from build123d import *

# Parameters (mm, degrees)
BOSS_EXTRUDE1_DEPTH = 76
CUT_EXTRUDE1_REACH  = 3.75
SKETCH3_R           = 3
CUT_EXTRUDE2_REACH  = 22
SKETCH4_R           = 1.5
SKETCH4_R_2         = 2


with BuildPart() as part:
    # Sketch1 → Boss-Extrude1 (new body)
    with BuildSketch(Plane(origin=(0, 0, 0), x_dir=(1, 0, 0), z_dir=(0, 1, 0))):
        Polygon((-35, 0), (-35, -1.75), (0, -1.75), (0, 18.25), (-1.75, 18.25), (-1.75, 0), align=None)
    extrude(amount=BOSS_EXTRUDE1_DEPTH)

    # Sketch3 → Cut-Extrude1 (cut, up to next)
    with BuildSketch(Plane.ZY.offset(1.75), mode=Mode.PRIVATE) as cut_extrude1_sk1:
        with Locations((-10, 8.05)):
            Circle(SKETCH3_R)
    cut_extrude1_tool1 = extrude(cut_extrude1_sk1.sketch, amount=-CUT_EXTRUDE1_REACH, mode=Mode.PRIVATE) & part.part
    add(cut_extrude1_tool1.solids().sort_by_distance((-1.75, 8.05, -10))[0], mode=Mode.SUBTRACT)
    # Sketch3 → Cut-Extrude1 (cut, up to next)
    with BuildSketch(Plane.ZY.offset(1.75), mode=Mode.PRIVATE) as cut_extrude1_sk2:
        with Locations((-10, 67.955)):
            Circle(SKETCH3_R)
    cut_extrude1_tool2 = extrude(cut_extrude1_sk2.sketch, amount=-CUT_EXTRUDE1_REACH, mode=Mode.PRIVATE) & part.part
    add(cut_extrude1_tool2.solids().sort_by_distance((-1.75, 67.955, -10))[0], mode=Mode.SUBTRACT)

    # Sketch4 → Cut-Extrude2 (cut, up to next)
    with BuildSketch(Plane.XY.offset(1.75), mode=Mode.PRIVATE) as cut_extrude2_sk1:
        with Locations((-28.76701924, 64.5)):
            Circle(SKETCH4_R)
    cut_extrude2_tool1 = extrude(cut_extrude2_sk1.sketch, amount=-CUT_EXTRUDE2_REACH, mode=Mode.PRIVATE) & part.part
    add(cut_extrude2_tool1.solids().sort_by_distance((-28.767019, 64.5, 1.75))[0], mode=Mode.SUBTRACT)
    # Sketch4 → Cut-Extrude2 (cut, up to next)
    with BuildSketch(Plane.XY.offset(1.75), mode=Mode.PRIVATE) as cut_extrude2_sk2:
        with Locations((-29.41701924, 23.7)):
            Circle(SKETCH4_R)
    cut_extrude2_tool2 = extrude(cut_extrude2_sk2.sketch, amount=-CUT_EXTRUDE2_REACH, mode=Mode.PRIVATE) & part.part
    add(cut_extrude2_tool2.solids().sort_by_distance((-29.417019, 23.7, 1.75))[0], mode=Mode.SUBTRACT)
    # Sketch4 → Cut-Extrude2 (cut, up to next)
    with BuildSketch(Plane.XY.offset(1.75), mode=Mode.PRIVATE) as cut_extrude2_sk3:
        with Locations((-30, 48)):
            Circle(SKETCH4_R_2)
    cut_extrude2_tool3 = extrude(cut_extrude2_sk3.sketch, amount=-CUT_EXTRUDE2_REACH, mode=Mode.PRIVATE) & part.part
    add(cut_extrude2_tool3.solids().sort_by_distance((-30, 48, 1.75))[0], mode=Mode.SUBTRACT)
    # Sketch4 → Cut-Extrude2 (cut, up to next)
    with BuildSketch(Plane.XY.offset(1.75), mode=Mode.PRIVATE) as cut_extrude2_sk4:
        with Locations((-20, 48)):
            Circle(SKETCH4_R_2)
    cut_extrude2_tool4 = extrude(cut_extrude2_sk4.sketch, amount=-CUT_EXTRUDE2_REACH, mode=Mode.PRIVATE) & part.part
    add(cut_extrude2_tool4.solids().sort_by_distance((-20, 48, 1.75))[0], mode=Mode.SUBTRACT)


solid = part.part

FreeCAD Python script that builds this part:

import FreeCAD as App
import Part
import Sketcher

V = App.Vector
Q = App.Units.Quantity


def add_polygon(sketch, points):
    """Adds a closed chain of lines whose ends are joined by coincident constraints."""
    first, n = sketch.GeometryCount, len(points)
    for a, b in zip(points, points[1:] + points[:1]):
        sketch.addGeometry(Part.LineSegment(App.Vector(*a, 0), App.Vector(*b, 0)), False)
    for i in range(n):
        sketch.addConstraint(Sketcher.Constraint("Coincident", first + i, 2, first + (i + 1) % n, 1))

doc = App.newDocument("Part")
body = doc.addObject("PartDesign::Body", "Body")

sketch1 = doc.addObject("Sketcher::SketchObject", "Sketch")
body.addObject(sketch1)
sketch1.AttachmentSupport = (doc.XZ_Plane, [""])
sketch1.MapMode = "FlatFace"
add_polygon(sketch1, [(-35, 0), (-35, 1.8), (0, 1.8), (0, -18.2), (-1.8, -18.2), (-1.8, 0)])
sketch1.addConstraint(Sketcher.Constraint("Vertical", 0))
sketch1.addConstraint(Sketcher.Constraint("Horizontal", 1))
sketch1.addConstraint(Sketcher.Constraint("Vertical", 2))
sketch1.addConstraint(Sketcher.Constraint("Horizontal", 3))
sketch1.addConstraint(Sketcher.Constraint("Vertical", 4))
sketch1.addConstraint(Sketcher.Constraint("Horizontal", 5))
sketch1.addConstraint(Sketcher.Constraint("PointOnObject", 1, 2, -2))
sketch1.addConstraint(Sketcher.Constraint("PointOnObject", 4, 2, -1))
sketch1.addConstraint(Sketcher.Constraint("Equal", 3, 0))
sketch1.addConstraint(Sketcher.Constraint("DistanceX", 1, 1, 1, 2, Q("35 mm")))
sketch1.addConstraint(Sketcher.Constraint("DistanceY", 2, 2, 2, 1, Q("20 mm")))
sketch1.addConstraint(Sketcher.Constraint("DistanceX", 3, 2, 3, 1, Q("1.75 mm")))
pad1 = doc.addObject("PartDesign::Pad", "Pad")
body.addObject(pad1)
pad1.Profile = sketch1
pad1.Length = 76
pad1.Reversed = True

sketch2 = doc.addObject("Sketcher::SketchObject", "Sketch001")
body.addObject(sketch2)
sketch2.AttachmentSupport = (doc.YZ_Plane, [""])
sketch2.MapMode = "FlatFace"
sketch2.AttachmentOffset = App.Placement(V(0, 0, -1.75), App.Rotation())
sketch2.addGeometry(Part.Circle(V(8.1, -10, 0), V(0, 0, 1), 3), False)
sketch2.addConstraint(Sketcher.Constraint("Diameter", 0, Q("6 mm")))
sketch2.addConstraint(Sketcher.Constraint("DistanceY", 0, 3, -1, 1, Q("10 mm")))
sketch2.addConstraint(Sketcher.Constraint("DistanceX", -1, 1, 0, 3, Q("8.05 mm")))
pocket1 = doc.addObject("PartDesign::Pocket", "Pocket")
body.addObject(pocket1)
pocket1.Profile = sketch2
pocket1.Type = "UpToFirst"
pocket1.Reversed = True

sketch3 = doc.addObject("Sketcher::SketchObject", "Sketch002")
body.addObject(sketch3)
sketch3.AttachmentSupport = (doc.YZ_Plane, [""])
sketch3.MapMode = "FlatFace"
sketch3.AttachmentOffset = App.Placement(V(0, 0, -1.75), App.Rotation())
sketch3.addGeometry(Part.Circle(V(68, -10, 0), V(0, 0, 1), 3), False)
sketch3.addConstraint(Sketcher.Constraint("Diameter", 0, Q("6 mm")))
sketch3.addConstraint(Sketcher.Constraint("DistanceY", 0, 3, -1, 1, Q("10 mm")))
sketch3.addConstraint(Sketcher.Constraint("DistanceX", -1, 1, 0, 3, Q("67.955 mm")))
pocket2 = doc.addObject("PartDesign::Pocket", "Pocket001")
body.addObject(pocket2)
pocket2.Profile = sketch3
pocket2.Type = "UpToFirst"
pocket2.Reversed = True

sketch4 = doc.addObject("Sketcher::SketchObject", "Sketch003")
body.addObject(sketch4)
sketch4.AttachmentSupport = (doc.XY_Plane, [""])
sketch4.MapMode = "FlatFace"
sketch4.AttachmentOffset = App.Placement(V(0, 0, 1.75), App.Rotation())
sketch4.addGeometry(Part.Circle(V(-28.8, 64.5, 0), V(0, 0, 1), 1.5), False)
sketch4.addConstraint(Sketcher.Constraint("Diameter", 0, Q("3 mm")))
sketch4.addConstraint(Sketcher.Constraint("DistanceY", -1, 1, 0, 3, Q("64.5 mm")))
sketch4.addConstraint(Sketcher.Constraint("DistanceX", 0, 3, -1, 1, Q("28.767019 mm")))
pocket3 = doc.addObject("PartDesign::Pocket", "Pocket002")
body.addObject(pocket3)
pocket3.Profile = sketch4
pocket3.Type = "UpToFirst"

sketch5 = doc.addObject("Sketcher::SketchObject", "Sketch004")
body.addObject(sketch5)
sketch5.AttachmentSupport = (doc.XY_Plane, [""])
sketch5.MapMode = "FlatFace"
sketch5.AttachmentOffset = App.Placement(V(0, 0, 1.75), App.Rotation())
sketch5.addGeometry(Part.Circle(V(-29.4, 23.7, 0), V(0, 0, 1), 1.5), False)
sketch5.addConstraint(Sketcher.Constraint("Diameter", 0, Q("3 mm")))
sketch5.addConstraint(Sketcher.Constraint("DistanceY", -1, 1, 0, 3, Q("23.7 mm")))
sketch5.addConstraint(Sketcher.Constraint("DistanceX", 0, 3, -1, 1, Q("29.417019 mm")))
pocket4 = doc.addObject("PartDesign::Pocket", "Pocket003")
body.addObject(pocket4)
pocket4.Profile = sketch5
pocket4.Type = "UpToFirst"

sketch6 = doc.addObject("Sketcher::SketchObject", "Sketch005")
body.addObject(sketch6)
sketch6.AttachmentSupport = (doc.XY_Plane, [""])
sketch6.MapMode = "FlatFace"
sketch6.AttachmentOffset = App.Placement(V(0, 0, 1.75), App.Rotation())
sketch6.addGeometry(Part.Circle(V(-30, 48, 0), V(0, 0, 1), 2), False)
sketch6.addConstraint(Sketcher.Constraint("Diameter", 0, Q("4 mm")))
sketch6.addConstraint(Sketcher.Constraint("DistanceX", 0, 3, -1, 1, Q("30 mm")))
sketch6.addConstraint(Sketcher.Constraint("DistanceY", -1, 1, 0, 3, Q("48 mm")))
pocket5 = doc.addObject("PartDesign::Pocket", "Pocket004")
body.addObject(pocket5)
pocket5.Profile = sketch6
pocket5.Type = "UpToFirst"

sketch7 = doc.addObject("Sketcher::SketchObject", "Sketch006")
body.addObject(sketch7)
sketch7.AttachmentSupport = (doc.XY_Plane, [""])
sketch7.MapMode = "FlatFace"
sketch7.AttachmentOffset = App.Placement(V(0, 0, 1.75), App.Rotation())
sketch7.addGeometry(Part.Circle(V(-20, 48, 0), V(0, 0, 1), 2), False)
sketch7.addConstraint(Sketcher.Constraint("Diameter", 0, Q("4 mm")))
sketch7.addConstraint(Sketcher.Constraint("DistanceX", 0, 3, -1, 1, Q("20 mm")))
sketch7.addConstraint(Sketcher.Constraint("DistanceY", -1, 1, 0, 3, Q("48 mm")))
pocket6 = doc.addObject("PartDesign::Pocket", "Pocket005")
body.addObject(pocket6)
pocket6.Profile = sketch7
pocket6.Type = "UpToFirst"

doc.recompute()
